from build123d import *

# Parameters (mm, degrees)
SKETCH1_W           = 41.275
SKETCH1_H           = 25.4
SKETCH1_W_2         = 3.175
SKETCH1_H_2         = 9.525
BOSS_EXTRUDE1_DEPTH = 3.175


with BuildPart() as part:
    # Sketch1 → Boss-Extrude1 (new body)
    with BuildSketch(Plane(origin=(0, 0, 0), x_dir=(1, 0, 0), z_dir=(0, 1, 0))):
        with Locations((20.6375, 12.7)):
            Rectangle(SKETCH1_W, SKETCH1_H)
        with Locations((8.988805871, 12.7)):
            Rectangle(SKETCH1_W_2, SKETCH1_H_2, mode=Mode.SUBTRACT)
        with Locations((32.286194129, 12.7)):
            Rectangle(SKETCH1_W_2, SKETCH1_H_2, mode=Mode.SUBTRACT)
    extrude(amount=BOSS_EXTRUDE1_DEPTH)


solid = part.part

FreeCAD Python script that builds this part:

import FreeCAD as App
import Part
import Sketcher

V = App.Vector
Q = App.Units.Quantity


def add_polygon(sketch, points):
    """Adds a closed chain of lines whose ends are joined by coincident constraints."""
    first, n = sketch.GeometryCount, len(points)
    for a, b in zip(points, points[1:] + points[:1]):
        sketch.addGeometry(Part.LineSegment(App.Vector(*a, 0), App.Vector(*b, 0)), False)
    for i in range(n):
        sketch.addConstraint(Sketcher.Constraint("Coincident", first + i, 2, first + (i + 1) % n, 1))

doc = App.newDocument("Part")
params = doc.addObject("Spreadsheet::Sheet", "Params")
for row, (alias, value) in enumerate([
    ("sketch1_height", "1 in"),
    ("sketch1_width", "1.625 in"),
    ("sketch1_width2", "0.125 in"),
    ("sketch1_height2", "0.375 in"),
    ("pad1_length", "0.125 in"),
], start=1):
    params.set(f"A{row}", alias)
    params.set(f"B{row}", "=" + value)
    params.setAlias(f"B{row}", alias)

body = doc.addObject("PartDesign::Body", "Body")

# Sketch on XZ plane
sketch1 = body.newObject("Sketcher::SketchObject", "Sketch")
sketch1.AttachmentSupport = (doc.getObject("XZ_Plane"), [""])
sketch1.MapMode = "FlatFace"
add_polygon(sketch1, [(0, -25.4), (0, 0), (41.3, 0), (41.3, -25.4)])  # lines 0-3
add_polygon(sketch1, [(10.6, -7.9), (7.4, -7.9), (7.4, -17.5), (10.6, -17.5)])  # lines 4-7
add_polygon(sketch1, [(33.9, -7.9), (30.7, -7.9), (30.7, -17.5), (33.9, -17.5)])  # lines 8-11
sketch1.addConstraint([
    Sketcher.Constraint("Vertical", 0),
    Sketcher.Constraint("Horizontal", 1),
    Sketcher.Constraint("Vertical", 2),
    Sketcher.Constraint("Horizontal", 3),
    Sketcher.Constraint("Horizontal", 4),
    Sketcher.Constraint("Vertical", 5),
    Sketcher.Constraint("Horizontal", 6),
    Sketcher.Constraint("Vertical", 7),
    Sketcher.Constraint("Horizontal", 8),
    Sketcher.Constraint("Vertical", 9),
    Sketcher.Constraint("Horizontal", 10),
    Sketcher.Constraint("Vertical", 11),
    Sketcher.Constraint("Coincident", 0, 2, -1, 1),
    Sketcher.Constraint("Horizontal", 7, 2, 8, 2),
    Sketcher.Constraint("Horizontal", 6, 2, 9, 2),
    Sketcher.Constraint("Equal", 6, 8),
    Sketcher.Constraint("DistanceY", 0, 1, 0, 2, Q("1 in")),
    Sketcher.Constraint("DistanceX", 1, 1, 1, 2, Q("1.625 in")),
    Sketcher.Constraint("DistanceX", 4, 2, 4, 1, Q("0.125 in")),
    Sketcher.Constraint("DistanceY", 5, 2, 5, 1, Q("0.375 in")),
    Sketcher.Constraint("DistanceY", 4, 2, -1, 1, Q("0.3125 in")),
    Sketcher.Constraint("DistanceX", 7, 2, 8, 2, Q("20.122388 mm")),
    Sketcher.Constraint("DistanceX", -1, 1, 4, 2, Q("7.401306 mm")),
])
sketch1.setExpression("Constraints[28]", "Params.sketch1_height")
sketch1.setExpression("Constraints[29]", "Params.sketch1_width")
sketch1.setExpression("Constraints[30]", "Params.sketch1_width2")
sketch1.setExpression("Constraints[31]", "Params.sketch1_height2")
pad1 = body.newObject("PartDesign::Pad", "Pad")
pad1.Profile = sketch1
pad1.setExpression("Length", "Params.pad1_length")
pad1.Reversed = True

doc.recompute()
